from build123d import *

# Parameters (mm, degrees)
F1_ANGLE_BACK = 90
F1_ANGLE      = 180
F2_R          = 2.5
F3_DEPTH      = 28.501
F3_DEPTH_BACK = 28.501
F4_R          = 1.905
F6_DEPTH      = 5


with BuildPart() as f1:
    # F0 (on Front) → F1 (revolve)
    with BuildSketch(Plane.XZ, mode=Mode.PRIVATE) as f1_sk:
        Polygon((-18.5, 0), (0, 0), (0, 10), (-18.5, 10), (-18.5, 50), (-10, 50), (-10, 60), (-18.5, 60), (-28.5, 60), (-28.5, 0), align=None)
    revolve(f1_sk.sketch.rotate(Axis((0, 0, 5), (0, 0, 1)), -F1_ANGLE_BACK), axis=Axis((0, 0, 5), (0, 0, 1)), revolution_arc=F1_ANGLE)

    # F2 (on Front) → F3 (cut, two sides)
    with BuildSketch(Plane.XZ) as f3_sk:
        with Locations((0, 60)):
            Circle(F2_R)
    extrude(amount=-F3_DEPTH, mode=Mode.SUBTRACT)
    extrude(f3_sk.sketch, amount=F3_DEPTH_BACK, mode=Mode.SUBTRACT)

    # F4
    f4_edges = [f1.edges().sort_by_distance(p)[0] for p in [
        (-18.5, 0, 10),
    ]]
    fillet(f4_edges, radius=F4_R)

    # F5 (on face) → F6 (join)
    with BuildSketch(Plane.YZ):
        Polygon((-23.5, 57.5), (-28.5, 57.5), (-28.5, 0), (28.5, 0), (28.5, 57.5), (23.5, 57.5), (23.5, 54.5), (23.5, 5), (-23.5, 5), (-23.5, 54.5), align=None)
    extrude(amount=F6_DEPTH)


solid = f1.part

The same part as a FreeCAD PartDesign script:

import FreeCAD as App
import Part
import Sketcher

V = App.Vector


def edges_at(feature, points):
    """Names of the edges that pass closest to the given points."""
    edges = feature.Shape.Edges
    near = lambda p: min(range(len(edges)), key=lambda i: edges[i].distToShape(Part.Vertex(*p))[0])
    return sorted({f"Edge{near(p) + 1}" for p in points})


def add_polygon(sketch, points):
    """Adds a closed chain of lines whose ends are joined by coincident constraints."""
    first, n = sketch.GeometryCount, len(points)
    for a, b in zip(points, points[1:] + points[:1]):
        sketch.addGeometry(Part.LineSegment(App.Vector(*a, 0), App.Vector(*b, 0)), False)
    for i in range(n):
        sketch.addConstraint(Sketcher.Constraint("Coincident", first + i, 2, first + (i + 1) % n, 1))

doc = App.newDocument("Part")
body = doc.addObject("PartDesign::Body", "Body")

# Sketch on YZ plane
sketch1 = doc.addObject("Sketcher::SketchObject", "Sketch")
body.addObject(sketch1)
sketch1.AttachmentSupport = (doc.YZ_Plane, [""])
sketch1.MapMode = "FlatFace"
add_polygon(sketch1, [(0, 0), (0, 10), (18.5, 10), (18.5, 50), (10, 50), (10, 60), (28.5, 60), (28.5, 0)])  # lines 0-7
sketch1.addConstraint(Sketcher.Constraint("Vertical", 0))
sketch1.addConstraint(Sketcher.Constraint("Horizontal", 1))
sketch1.addConstraint(Sketcher.Constraint("Vertical", 2))
sketch1.addConstraint(Sketcher.Constraint("Horizontal", 3))
sketch1.addConstraint(Sketcher.Constraint("Vertical", 4))
sketch1.addConstraint(Sketcher.Constraint("Horizontal", 5))
sketch1.addConstraint(Sketcher.Constraint("Vertical", 6))
sketch1.addConstraint(Sketcher.Constraint("Horizontal", 7))
sketch1.addConstraint(Sketcher.Constraint("Coincident", 7, 2, -1, 1))
sketch1.addConstraint(Sketcher.Constraint("Equal", 1, 5))
sketch1.addConstraint(Sketcher.Constraint("Equal", 0, 4))
sketch1.addConstraint(Sketcher.Constraint("DistanceY", 0, 1, 0, 2, 10.0))
sketch1.addConstraint(Sketcher.Constraint("DistanceY", 2, 1, 2, 2, 40.0))
sketch1.addConstraint(Sketcher.Constraint("DistanceX", 1, 1, 1, 2, 18.5))
sketch1.addConstraint(Sketcher.Constraint("DistanceX", 3, 2, 3, 1, 8.5))
revolution = doc.addObject("PartDesign::Revolution", "Revolution")
body.addObject(revolution)
revolution.Profile = sketch1
revolution.ReferenceAxis = (sketch1, ["V_Axis"])
revolution.Angle = 180

# Sketch on XZ plane
sketch2 = doc.addObject("Sketcher::SketchObject", "Sketch001")
body.addObject(sketch2)
sketch2.AttachmentSupport = (doc.XZ_Plane, [""])
sketch2.MapMode = "FlatFace"
sketch2.addGeometry(Part.Circle(V(0, 60, 0), V(0, 0, 1), 2.5), False)
sketch2.addConstraint(Sketcher.Constraint("PointOnObject", 0, 3, -2))
sketch2.addConstraint(Sketcher.Constraint("Diameter", 0, 5.0))
sketch2.addConstraint(Sketcher.Constraint("DistanceY", -1, 1, 0, 3, 60.0))
pocket1 = doc.addObject("PartDesign::Pocket", "Pocket")
body.addObject(pocket1)
pocket1.Profile = sketch2
pocket1.Type = "ThroughAll"
pocket1.Midplane = True
doc.recompute()

fillet = doc.addObject("PartDesign::Fillet", "Fillet")
body.addObject(fillet)
fillet.Base = (pocket1, edges_at(pocket1, [(-18.5, 0, 10)]))
fillet.Radius = 1.905

# Sketch on YZ plane
sketch3 = doc.addObject("Sketcher::SketchObject", "Sketch002")
body.addObject(sketch3)
sketch3.AttachmentSupport = (doc.YZ_Plane, [""])
sketch3.MapMode = "FlatFace"
add_polygon(sketch3, [(-23.5, 57.5), (-28.5, 57.5), (-28.5, 0), (28.5, 0), (28.5, 57.5), (23.5, 57.5), (23.5, 5), (-23.5, 5)])  # lines 0-7
sketch3.addConstraint(Sketcher.Constraint("Horizontal", 0))
sketch3.addConstraint(Sketcher.Constraint("Vertical", 1))
sketch3.addConstraint(Sketcher.Constraint("Horizontal", 2))
sketch3.addConstraint(Sketcher.Constraint("Vertical", 3))
sketch3.addConstraint(Sketcher.Constraint("Horizontal", 4))
sketch3.addConstraint(Sketcher.Constraint("Vertical", 5))
sketch3.addConstraint(Sketcher.Constraint("Horizontal", 6))
sketch3.addConstraint(Sketcher.Constraint("Vertical", 7))
sketch3.addConstraint(Sketcher.Constraint("Symmetric", 1, 2, 2, 2, -1, 1))
sketch3.addConstraint(Sketcher.Constraint("Symmetric", 4, 2, 7, 2, -2))
sketch3.addConstraint(Sketcher.Constraint("DistanceX", 0, 2, 0, 1, 5.0))
sketch3.addConstraint(Sketcher.Constraint("DistanceX", 2, 1, 2, 2, 57.0))
sketch3.addConstraint(Sketcher.Constraint("DistanceY", 1, 2, 1, 1, 57.5))
sketch3.addConstraint(Sketcher.Constraint("DistanceY", 5, 2, 5, 1, 52.5))
pad1 = doc.addObject("PartDesign::Pad", "Pad")
body.addObject(pad1)
pad1.Profile = sketch3
pad1.Length = 5

doc.recompute()
